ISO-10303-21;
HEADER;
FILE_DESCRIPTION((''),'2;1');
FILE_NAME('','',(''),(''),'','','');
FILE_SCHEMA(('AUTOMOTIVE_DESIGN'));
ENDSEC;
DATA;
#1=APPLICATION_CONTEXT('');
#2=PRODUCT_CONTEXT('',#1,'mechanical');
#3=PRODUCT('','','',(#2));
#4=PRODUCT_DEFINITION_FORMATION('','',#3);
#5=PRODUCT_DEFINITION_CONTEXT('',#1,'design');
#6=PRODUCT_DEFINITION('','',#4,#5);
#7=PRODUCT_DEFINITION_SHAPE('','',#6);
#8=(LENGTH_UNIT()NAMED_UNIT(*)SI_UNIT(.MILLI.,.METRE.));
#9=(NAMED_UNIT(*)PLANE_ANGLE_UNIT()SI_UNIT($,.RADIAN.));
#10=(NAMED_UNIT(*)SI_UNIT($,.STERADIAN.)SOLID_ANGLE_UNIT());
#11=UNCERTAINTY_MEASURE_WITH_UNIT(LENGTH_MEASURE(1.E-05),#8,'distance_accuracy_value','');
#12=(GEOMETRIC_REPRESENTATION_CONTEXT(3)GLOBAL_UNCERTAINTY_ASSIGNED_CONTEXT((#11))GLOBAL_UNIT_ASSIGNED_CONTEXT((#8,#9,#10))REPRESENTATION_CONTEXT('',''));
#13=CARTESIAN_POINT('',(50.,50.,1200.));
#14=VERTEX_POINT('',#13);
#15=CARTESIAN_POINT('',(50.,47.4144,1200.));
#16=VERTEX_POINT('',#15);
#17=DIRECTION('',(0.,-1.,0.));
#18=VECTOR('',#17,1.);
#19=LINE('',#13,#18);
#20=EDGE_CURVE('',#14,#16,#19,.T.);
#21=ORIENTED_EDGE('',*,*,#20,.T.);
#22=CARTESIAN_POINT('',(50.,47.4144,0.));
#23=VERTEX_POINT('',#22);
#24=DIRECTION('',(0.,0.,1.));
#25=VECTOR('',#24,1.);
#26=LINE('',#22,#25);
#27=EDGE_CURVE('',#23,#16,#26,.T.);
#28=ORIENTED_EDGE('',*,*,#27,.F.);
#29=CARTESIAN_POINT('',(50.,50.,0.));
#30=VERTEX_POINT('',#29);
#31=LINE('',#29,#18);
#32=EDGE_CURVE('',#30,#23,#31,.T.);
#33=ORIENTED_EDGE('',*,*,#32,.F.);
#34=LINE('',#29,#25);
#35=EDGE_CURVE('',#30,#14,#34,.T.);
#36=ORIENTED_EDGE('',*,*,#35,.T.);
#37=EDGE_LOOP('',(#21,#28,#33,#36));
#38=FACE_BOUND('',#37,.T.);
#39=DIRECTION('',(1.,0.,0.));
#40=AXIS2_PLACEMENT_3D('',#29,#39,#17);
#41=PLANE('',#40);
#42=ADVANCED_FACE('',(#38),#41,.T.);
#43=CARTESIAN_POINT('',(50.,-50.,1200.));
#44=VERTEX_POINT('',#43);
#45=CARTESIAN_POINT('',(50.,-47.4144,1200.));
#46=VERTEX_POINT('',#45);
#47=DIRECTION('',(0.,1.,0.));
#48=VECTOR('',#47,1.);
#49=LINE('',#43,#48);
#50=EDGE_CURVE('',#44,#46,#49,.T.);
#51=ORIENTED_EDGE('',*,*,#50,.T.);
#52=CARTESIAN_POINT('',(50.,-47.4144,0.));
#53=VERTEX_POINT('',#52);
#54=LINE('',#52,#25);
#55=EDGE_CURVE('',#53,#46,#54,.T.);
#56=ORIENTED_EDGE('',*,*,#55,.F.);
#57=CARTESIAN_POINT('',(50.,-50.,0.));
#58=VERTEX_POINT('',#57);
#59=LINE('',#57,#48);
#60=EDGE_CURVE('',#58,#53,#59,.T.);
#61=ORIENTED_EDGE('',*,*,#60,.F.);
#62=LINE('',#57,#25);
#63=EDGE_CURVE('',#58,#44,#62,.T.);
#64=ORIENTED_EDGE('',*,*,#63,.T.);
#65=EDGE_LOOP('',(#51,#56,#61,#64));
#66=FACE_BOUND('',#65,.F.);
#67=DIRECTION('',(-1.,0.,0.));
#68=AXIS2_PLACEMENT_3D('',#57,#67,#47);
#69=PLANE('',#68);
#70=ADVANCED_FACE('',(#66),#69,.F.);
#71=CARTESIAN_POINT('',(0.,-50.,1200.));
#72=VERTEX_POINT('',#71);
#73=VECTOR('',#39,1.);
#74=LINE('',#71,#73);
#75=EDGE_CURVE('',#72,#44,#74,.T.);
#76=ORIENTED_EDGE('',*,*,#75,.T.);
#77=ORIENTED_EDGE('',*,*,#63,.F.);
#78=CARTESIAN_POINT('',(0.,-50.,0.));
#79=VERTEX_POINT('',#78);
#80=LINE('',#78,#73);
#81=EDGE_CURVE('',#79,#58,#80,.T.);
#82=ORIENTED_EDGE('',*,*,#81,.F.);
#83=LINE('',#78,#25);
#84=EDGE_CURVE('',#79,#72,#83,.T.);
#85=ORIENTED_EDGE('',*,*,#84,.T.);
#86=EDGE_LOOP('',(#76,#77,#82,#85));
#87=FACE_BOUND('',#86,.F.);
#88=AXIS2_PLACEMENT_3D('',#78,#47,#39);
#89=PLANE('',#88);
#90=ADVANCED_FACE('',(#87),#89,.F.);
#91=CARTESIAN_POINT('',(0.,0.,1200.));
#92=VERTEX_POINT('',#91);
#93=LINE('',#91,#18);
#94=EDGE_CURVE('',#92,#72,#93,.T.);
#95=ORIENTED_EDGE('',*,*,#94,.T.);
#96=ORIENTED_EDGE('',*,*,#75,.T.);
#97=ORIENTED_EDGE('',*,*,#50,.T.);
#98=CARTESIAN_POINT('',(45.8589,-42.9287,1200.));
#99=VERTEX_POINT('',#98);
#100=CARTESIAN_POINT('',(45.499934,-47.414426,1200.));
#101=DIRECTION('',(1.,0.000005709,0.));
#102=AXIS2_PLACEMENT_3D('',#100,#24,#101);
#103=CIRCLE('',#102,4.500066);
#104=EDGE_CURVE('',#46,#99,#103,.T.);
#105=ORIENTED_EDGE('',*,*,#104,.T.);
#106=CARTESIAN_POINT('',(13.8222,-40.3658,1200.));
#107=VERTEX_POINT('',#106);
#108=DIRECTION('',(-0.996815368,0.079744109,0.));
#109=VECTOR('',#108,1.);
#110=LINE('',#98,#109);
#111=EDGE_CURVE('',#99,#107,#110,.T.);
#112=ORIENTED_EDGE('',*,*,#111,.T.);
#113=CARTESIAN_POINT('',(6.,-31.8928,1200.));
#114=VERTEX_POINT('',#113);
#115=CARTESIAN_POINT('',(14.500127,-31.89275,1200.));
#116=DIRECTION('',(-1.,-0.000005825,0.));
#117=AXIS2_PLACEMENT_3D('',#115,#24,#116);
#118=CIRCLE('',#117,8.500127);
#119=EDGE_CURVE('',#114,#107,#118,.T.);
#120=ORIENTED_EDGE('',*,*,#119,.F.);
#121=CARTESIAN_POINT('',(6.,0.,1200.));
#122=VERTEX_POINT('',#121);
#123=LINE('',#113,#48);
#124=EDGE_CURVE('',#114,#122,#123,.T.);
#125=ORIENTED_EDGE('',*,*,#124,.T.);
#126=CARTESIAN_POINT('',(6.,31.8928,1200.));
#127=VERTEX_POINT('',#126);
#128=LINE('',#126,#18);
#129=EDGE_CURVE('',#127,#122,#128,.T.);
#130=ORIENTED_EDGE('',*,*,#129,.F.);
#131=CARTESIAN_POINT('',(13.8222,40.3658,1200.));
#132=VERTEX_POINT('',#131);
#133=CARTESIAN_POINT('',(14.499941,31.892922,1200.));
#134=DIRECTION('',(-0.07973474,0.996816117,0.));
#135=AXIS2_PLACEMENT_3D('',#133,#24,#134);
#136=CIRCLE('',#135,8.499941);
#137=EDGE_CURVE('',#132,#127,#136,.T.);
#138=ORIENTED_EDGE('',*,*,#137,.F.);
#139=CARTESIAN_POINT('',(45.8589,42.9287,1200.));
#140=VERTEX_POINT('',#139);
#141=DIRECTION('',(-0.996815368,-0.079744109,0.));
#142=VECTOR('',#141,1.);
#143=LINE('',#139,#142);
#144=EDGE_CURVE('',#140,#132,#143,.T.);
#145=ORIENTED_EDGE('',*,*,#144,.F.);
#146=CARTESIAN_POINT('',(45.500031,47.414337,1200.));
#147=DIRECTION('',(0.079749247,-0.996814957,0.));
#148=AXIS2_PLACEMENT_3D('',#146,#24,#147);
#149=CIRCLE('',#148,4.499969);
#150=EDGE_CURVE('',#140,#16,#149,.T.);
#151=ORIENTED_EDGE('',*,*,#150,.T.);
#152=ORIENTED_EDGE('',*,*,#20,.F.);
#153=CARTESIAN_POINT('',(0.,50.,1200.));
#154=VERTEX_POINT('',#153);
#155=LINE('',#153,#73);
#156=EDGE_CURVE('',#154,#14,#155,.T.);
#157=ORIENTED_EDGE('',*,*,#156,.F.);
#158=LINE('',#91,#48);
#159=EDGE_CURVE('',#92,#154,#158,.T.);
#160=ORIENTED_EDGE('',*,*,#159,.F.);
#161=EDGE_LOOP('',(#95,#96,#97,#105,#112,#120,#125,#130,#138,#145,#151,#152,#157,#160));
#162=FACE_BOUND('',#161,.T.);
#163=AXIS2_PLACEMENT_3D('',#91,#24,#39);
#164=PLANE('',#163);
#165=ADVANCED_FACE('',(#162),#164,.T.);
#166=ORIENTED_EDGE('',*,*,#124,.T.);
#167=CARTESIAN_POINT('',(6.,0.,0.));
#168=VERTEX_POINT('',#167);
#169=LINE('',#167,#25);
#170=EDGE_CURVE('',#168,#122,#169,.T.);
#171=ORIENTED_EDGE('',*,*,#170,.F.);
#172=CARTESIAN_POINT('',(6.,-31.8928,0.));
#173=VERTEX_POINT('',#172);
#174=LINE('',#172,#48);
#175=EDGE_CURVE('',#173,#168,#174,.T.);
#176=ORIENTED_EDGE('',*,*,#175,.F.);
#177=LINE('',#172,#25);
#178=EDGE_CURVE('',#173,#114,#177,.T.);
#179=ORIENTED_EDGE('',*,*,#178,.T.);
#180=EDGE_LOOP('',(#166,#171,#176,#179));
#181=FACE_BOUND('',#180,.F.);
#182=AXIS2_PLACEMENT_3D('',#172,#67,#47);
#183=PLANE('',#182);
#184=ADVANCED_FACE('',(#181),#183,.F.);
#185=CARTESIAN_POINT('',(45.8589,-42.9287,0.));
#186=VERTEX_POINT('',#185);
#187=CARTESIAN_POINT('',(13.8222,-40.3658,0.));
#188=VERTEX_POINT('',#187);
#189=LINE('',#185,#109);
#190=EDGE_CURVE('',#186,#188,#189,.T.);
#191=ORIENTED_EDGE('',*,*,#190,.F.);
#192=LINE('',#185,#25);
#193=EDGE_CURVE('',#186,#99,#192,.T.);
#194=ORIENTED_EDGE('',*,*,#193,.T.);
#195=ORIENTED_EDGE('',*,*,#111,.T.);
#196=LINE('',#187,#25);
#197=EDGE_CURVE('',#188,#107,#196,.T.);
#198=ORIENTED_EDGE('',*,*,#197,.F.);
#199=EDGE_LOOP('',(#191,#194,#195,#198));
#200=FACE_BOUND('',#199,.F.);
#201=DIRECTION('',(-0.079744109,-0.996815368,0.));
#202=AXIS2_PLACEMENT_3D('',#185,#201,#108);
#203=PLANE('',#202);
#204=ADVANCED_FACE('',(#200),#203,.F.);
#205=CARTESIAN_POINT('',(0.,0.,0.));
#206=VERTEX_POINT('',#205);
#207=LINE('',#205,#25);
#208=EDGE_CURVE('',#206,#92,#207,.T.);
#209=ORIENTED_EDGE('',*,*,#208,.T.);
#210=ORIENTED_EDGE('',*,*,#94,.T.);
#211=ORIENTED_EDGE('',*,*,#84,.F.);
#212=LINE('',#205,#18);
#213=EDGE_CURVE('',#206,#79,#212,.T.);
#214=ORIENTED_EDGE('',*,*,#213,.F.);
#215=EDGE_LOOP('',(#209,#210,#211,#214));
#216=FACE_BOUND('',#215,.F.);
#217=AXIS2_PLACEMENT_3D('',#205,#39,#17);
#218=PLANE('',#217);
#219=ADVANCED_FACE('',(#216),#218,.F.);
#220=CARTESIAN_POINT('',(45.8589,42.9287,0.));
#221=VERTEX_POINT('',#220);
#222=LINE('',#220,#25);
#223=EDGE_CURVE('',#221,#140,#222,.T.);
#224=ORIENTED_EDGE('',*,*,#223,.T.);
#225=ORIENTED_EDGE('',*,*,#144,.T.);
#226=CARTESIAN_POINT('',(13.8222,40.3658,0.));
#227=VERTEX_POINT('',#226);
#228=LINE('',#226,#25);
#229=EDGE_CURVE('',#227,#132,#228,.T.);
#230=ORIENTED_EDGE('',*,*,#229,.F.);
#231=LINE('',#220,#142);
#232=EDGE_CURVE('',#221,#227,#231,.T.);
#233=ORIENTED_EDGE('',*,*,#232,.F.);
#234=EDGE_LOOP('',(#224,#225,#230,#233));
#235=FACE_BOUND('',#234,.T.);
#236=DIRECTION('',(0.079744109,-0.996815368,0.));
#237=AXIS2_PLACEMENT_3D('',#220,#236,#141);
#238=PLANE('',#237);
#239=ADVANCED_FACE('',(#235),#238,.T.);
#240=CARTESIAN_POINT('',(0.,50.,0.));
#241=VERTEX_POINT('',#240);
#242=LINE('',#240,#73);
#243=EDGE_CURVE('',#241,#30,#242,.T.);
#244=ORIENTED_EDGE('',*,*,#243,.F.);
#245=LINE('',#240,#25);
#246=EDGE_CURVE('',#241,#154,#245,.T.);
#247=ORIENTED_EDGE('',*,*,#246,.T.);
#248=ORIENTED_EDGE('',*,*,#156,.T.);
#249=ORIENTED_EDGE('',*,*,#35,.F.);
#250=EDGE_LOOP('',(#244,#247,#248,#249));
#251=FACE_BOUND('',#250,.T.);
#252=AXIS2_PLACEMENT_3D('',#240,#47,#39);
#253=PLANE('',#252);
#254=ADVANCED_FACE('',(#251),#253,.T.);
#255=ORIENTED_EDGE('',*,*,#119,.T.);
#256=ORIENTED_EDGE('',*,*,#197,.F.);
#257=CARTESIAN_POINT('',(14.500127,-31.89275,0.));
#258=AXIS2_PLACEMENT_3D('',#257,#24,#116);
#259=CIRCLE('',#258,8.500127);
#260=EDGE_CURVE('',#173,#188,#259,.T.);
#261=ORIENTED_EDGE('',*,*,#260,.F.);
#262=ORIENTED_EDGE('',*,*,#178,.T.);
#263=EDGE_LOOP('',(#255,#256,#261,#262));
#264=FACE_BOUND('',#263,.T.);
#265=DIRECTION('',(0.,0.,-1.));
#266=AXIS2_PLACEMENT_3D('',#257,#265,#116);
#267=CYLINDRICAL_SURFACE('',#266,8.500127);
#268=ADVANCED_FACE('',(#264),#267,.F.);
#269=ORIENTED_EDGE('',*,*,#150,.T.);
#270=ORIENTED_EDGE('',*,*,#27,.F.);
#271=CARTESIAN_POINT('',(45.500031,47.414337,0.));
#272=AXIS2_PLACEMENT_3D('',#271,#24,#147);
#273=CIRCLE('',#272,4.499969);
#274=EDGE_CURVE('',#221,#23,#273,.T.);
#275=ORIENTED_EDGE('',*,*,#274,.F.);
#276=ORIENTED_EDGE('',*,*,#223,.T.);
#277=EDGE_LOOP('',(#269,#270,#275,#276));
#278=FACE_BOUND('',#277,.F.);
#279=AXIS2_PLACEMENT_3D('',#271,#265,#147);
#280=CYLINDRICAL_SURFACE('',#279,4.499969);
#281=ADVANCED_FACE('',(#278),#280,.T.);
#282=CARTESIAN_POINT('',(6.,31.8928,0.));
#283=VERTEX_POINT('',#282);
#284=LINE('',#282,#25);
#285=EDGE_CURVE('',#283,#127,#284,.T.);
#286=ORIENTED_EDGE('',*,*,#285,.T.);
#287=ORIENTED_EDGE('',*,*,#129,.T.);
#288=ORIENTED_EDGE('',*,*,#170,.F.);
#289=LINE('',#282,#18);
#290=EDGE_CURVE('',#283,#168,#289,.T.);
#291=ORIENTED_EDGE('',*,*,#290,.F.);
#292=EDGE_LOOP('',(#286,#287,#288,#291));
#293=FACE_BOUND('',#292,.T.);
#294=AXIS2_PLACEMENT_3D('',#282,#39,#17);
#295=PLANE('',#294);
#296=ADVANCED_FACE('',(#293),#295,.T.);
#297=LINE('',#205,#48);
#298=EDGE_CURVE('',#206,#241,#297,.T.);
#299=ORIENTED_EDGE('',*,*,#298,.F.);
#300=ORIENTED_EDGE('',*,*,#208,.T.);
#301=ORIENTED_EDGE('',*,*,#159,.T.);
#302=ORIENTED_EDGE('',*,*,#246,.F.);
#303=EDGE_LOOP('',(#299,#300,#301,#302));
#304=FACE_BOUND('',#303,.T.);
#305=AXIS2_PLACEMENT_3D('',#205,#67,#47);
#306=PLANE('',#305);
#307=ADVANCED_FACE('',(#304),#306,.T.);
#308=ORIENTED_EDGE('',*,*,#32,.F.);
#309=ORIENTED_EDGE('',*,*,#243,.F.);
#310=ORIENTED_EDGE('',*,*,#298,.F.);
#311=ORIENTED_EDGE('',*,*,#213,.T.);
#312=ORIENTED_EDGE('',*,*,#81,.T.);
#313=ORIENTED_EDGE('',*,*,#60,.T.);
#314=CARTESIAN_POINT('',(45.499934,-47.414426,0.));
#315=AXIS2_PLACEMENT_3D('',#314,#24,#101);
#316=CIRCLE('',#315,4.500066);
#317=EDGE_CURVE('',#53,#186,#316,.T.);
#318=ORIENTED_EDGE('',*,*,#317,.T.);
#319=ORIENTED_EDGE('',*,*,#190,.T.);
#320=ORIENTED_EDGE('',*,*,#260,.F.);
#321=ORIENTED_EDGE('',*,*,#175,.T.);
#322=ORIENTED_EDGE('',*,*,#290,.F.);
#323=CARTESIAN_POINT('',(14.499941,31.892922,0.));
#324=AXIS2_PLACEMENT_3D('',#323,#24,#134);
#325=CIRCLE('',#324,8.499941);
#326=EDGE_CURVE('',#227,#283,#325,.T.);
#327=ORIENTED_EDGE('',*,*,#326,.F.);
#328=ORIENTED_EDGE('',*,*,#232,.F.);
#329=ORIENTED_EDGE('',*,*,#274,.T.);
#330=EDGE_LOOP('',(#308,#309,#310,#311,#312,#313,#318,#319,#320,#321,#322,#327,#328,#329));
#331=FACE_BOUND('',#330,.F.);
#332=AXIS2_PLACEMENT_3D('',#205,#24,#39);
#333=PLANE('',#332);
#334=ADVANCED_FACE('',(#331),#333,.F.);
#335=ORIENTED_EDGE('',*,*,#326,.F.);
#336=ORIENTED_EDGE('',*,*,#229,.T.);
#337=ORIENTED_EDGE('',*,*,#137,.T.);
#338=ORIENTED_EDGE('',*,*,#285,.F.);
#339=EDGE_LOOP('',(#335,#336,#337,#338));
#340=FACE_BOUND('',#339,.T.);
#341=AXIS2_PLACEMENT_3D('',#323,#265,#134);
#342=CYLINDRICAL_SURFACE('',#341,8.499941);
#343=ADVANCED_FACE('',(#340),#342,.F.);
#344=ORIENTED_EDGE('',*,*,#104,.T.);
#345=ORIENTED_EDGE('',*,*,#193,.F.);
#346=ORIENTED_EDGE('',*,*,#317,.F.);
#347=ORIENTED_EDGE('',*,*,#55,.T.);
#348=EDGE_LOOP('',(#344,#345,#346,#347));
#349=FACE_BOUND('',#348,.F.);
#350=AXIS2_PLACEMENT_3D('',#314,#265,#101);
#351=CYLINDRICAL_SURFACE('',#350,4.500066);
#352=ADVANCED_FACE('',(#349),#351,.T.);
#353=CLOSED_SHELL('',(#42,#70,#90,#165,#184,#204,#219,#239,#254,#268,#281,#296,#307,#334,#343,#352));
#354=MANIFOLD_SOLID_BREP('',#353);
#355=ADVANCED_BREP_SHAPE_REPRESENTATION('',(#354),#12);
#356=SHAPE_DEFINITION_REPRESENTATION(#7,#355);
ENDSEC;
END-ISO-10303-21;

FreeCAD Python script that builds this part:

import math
import FreeCAD as App
import Part
import Sketcher
Q = App.Units.Quantity

doc = App.newDocument("Part")
body = doc.addObject("PartDesign::Body", "Body")

# Sketch on XY plane
sketch1 = doc.addObject("Sketcher::SketchObject", "Sketch")
body.addObject(sketch1)
sketch1.AttachmentSupport = (doc.XY_Plane, [""])
sketch1.MapMode = "FlatFace"
sketch1.addGeometry([
    Part.LineSegment(App.Vector(0, 50, 0), App.Vector(0, -50, 0)),  # 0
    Part.LineSegment(App.Vector(0, -50, 0), App.Vector(50, -50, 0)),  # 1
    Part.LineSegment(App.Vector(50, -50, 0), App.Vector(50, -47.4, 0)),  # 2
    Part.ArcOfCircle(Part.Circle(App.Vector(45.5, -47.4, 0), App.Vector(0, 0, 1), 4.5), math.radians(0), math.radians(85)),  # 3
    Part.LineSegment(App.Vector(45.9, -42.9, 0), App.Vector(13.8, -40.4, 0)),  # 4
    Part.ArcOfCircle(Part.Circle(App.Vector(14.5, -31.9, 0), App.Vector(0, 0, 1), 8.5), math.radians(180), math.radians(265)),  # 5
    Part.LineSegment(App.Vector(6, -31.9, 0), App.Vector(6, 31.9, 0)),  # 6
    Part.ArcOfCircle(Part.Circle(App.Vector(14.5, 31.9, 0), App.Vector(0, 0, 1), 8.5), math.radians(95), math.radians(180)),  # 7
    Part.LineSegment(App.Vector(13.8, 40.4, 0), App.Vector(45.9, 42.9, 0)),  # 8
    Part.ArcOfCircle(Part.Circle(App.Vector(45.5, 47.4, 0), App.Vector(0, 0, 1), 4.5), math.radians(-85), math.radians(0)),  # 9
    Part.LineSegment(App.Vector(50, 47.4, 0), App.Vector(50, 50, 0)),  # 10
    Part.LineSegment(App.Vector(50, 50, 0), App.Vector(0, 50, 0)),  # 11
], False)
sketch1.addConstraint([
    Sketcher.Constraint("Coincident", 0, 2, 1, 1),
    Sketcher.Constraint("Coincident", 1, 2, 2, 1),
    Sketcher.Constraint("Tangent", 2, 2, 3, 1),
    Sketcher.Constraint("Tangent", 3, 2, 4, 1),
    Sketcher.Constraint("Tangent", 4, 2, 5, 2),
    Sketcher.Constraint("Tangent", 5, 1, 6, 1),
    Sketcher.Constraint("Tangent", 6, 2, 7, 2),
    Sketcher.Constraint("Tangent", 7, 1, 8, 1),
    Sketcher.Constraint("Tangent", 8, 2, 9, 1),
    Sketcher.Constraint("Tangent", 9, 2, 10, 1),
    Sketcher.Constraint("Coincident", 10, 2, 11, 1),
    Sketcher.Constraint("Coincident", 11, 2, 0, 1),
    Sketcher.Constraint("Vertical", 0),
    Sketcher.Constraint("Horizontal", 1),
    Sketcher.Constraint("Vertical", 2),
    Sketcher.Constraint("Vertical", 6),
    Sketcher.Constraint("Vertical", 10),
    Sketcher.Constraint("Horizontal", 11),
    Sketcher.Constraint("Equal", 5, 7),
    Sketcher.Constraint("Equal", 3, 9),
    Sketcher.Constraint("Symmetric", 0, 2, 11, 2, -1, 1),
    Sketcher.Constraint("Symmetric", 3, 3, 9, 3, -1),
    Sketcher.Constraint("Vertical", 4, 2, 7, 1),
    Sketcher.Constraint("Radius", 3, Q("4.5 mm")),
    Sketcher.Constraint("Radius", 5, Q("8.5 mm")),
    Sketcher.Constraint("DistanceX", 1, 1, 1, 2, Q("50 mm")),
    Sketcher.Constraint("DistanceY", 0, 2, -1, 1, Q("50 mm")),
    Sketcher.Constraint("DistanceX", -1, 1, 5, 1, Q("6 mm")),
    Sketcher.Constraint("Distance", 4, Q("32.139 mm")),
    Sketcher.Constraint("DistanceY", 2, 1, 2, 2, Q("2.5856 mm")),
])
pad1 = doc.addObject("PartDesign::Pad", "Pad")
body.addObject(pad1)
pad1.Profile = sketch1
pad1.Length = 1200

doc.recompute()
